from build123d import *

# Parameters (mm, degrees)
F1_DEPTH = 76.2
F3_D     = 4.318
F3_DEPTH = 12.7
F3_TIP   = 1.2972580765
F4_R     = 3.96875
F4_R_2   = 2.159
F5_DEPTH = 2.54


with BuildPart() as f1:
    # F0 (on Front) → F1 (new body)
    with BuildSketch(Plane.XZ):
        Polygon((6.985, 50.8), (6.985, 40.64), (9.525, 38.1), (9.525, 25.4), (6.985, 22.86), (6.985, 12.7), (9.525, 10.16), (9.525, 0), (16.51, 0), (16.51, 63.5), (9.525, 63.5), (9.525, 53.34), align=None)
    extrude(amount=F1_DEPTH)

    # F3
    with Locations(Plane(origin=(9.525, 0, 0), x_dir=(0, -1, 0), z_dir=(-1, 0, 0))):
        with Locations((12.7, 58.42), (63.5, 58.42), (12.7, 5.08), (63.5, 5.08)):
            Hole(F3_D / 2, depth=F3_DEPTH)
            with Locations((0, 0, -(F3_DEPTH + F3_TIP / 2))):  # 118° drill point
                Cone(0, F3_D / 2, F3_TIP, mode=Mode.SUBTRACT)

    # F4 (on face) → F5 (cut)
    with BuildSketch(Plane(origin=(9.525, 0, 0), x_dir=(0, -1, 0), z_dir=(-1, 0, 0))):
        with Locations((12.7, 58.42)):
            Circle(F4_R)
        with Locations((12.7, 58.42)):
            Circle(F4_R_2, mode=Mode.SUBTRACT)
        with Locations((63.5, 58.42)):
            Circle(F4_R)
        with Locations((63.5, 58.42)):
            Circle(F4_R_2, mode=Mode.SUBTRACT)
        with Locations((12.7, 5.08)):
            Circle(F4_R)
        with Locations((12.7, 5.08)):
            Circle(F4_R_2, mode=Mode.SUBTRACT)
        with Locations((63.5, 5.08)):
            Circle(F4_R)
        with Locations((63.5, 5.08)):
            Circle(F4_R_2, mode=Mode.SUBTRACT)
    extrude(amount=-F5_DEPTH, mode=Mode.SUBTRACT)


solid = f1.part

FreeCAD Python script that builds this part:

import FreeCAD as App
import Part
import Sketcher

V = App.Vector
Q = App.Units.Quantity

doc = App.newDocument("Part")
body = doc.addObject("PartDesign::Body", "Body")

# Sketch on XZ plane
sketch1 = doc.addObject("Sketcher::SketchObject", "Sketch")
body.addObject(sketch1)
sketch1.AttachmentSupport = (doc.XZ_Plane, [""])
sketch1.MapMode = "FlatFace"
sketch1.addGeometry([
    Part.LineSegment(V(6.985, 50.8, 0), V(6.985, 40.64, 0)),  # 0
    Part.LineSegment(V(6.985, 40.64, 0), V(9.525, 38.1, 0)),  # 1
    Part.LineSegment(V(9.525, 38.1, 0), V(9.525, 25.4, 0)),  # 2
    Part.LineSegment(V(9.525, 25.4, 0), V(6.985, 22.86, 0)),  # 3
    Part.LineSegment(V(6.985, 22.86, 0), V(6.985, 12.7, 0)),  # 4
    Part.LineSegment(V(6.985, 12.7, 0), V(9.525, 10.16, 0)),  # 5
    Part.LineSegment(V(9.525, 10.16, 0), V(9.525, 0, 0)),  # 6
    Part.LineSegment(V(9.525, 0, 0), V(16.51, 0, 0)),  # 7
    Part.LineSegment(V(16.51, 0, 0), V(16.51, 63.5, 0)),  # 8
    Part.LineSegment(V(16.51, 63.5, 0), V(9.525, 63.5, 0)),  # 9
    Part.LineSegment(V(9.525, 63.5, 0), V(9.525, 53.34, 0)),  # 10
    Part.LineSegment(V(9.525, 53.34, 0), V(6.985, 50.8, 0)),  # 11
], False)
sketch1.addConstraint([
    Sketcher.Constraint("Coincident", 0, 2, 1, 1),
    Sketcher.Constraint("Coincident", 1, 2, 2, 1),
    Sketcher.Constraint("Coincident", 2, 2, 3, 1),
    Sketcher.Constraint("Coincident", 3, 2, 4, 1),
    Sketcher.Constraint("Coincident", 4, 2, 5, 1),
    Sketcher.Constraint("Coincident", 5, 2, 6, 1),
    Sketcher.Constraint("Coincident", 6, 2, 7, 1),
    Sketcher.Constraint("Coincident", 7, 2, 8, 1),
    Sketcher.Constraint("Coincident", 8, 2, 9, 1),
    Sketcher.Constraint("Coincident", 9, 2, 10, 1),
    Sketcher.Constraint("Coincident", 10, 2, 11, 1),
    Sketcher.Constraint("Coincident", 11, 2, 0, 1),
    Sketcher.Constraint("Vertical", 0),
    Sketcher.Constraint("Vertical", 2),
    Sketcher.Constraint("Vertical", 4),
    Sketcher.Constraint("Vertical", 6),
    Sketcher.Constraint("Horizontal", 7),
    Sketcher.Constraint("Vertical", 8),
    Sketcher.Constraint("Horizontal", 9),
    Sketcher.Constraint("Vertical", 10),
    Sketcher.Constraint("PointOnObject", 6, 2, -1),
    Sketcher.Constraint("Perpendicular", 1, 3),
    Sketcher.Constraint("Perpendicular", 3, 5),
    Sketcher.Constraint("Perpendicular", 5, 11),
    Sketcher.Constraint("Vertical", 0, 2, 3, 2),
    Sketcher.Constraint("Vertical", 2, 2, 5, 2),
    Sketcher.Constraint("Vertical", 6, 2, 9, 2),
    Sketcher.Constraint("Equal", 0, 4),
    Sketcher.Constraint("Equal", 4, 6),
    Sketcher.Constraint("Equal", 6, 10),
    Sketcher.Constraint("Equal", 1, 3),
    Sketcher.Constraint("DistanceY", 0, 2, 0, 1, Q("0.4 in")),
    Sketcher.Constraint("DistanceY", 2, 2, 2, 1, Q("0.5 in")),
    Sketcher.Constraint("DistanceY", 8, 1, 8, 2, Q("2.5 in")),
    Sketcher.Constraint("DistanceX", 7, 1, 7, 2, Q("0.275 in")),
    Sketcher.Constraint("DistanceX", -1, 1, 7, 2, Q("0.65 in")),
])
pad1 = doc.addObject("PartDesign::Pad", "Pad")
body.addObject(pad1)
pad1.Profile = sketch1
pad1.Length = Q("3 in")

# Sketch on YZ plane
sketch2 = doc.addObject("Sketcher::SketchObject", "Sketch001")
body.addObject(sketch2)
sketch2.AttachmentSupport = (doc.YZ_Plane, [""])
sketch2.MapMode = "FlatFace"
sketch2.AttachmentOffset = App.Placement(V(0, 0, 0.375 * 25.4), App.Rotation())
sketch2.addGeometry([
    Part.Circle(V(-12.7, 58.42, 0), V(0, 0, 1), 2.159),
    Part.Circle(V(-63.5, 58.42, 0), V(0, 0, 1), 2.159),
    Part.Circle(V(-12.7, 5.08, 0), V(0, 0, 1), 2.159),
    Part.Circle(V(-63.5, 5.08, 0), V(0, 0, 1), 2.159),
], False)
sketch2.addConstraint([
    Sketcher.Constraint("Equal", 0, 1),
    Sketcher.Constraint("Equal", 1, 2),
    Sketcher.Constraint("Equal", 2, 3),
    Sketcher.Constraint("Horizontal", 0, 3, 1, 3),
    Sketcher.Constraint("Horizontal", 2, 3, 3, 3),
    Sketcher.Constraint("Vertical", 0, 3, 2, 3),
    Sketcher.Constraint("Vertical", 1, 3, 3, 3),
    Sketcher.Constraint("Diameter", 0, Q("0.17 in")),
    Sketcher.Constraint("DistanceX", 1, 3, 0, 3, Q("2 in")),
    Sketcher.Constraint("DistanceX", 0, 3, -1, 1, Q("0.5 in")),
    Sketcher.Constraint("DistanceY", -1, 1, 0, 3, Q("2.3 in")),
    Sketcher.Constraint("DistanceY", -1, 1, 2, 3, Q("0.2 in")),
])
doc.recompute()
hole = doc.addObject("PartDesign::Hole", "Hole")
body.addObject(hole)
hole.Profile = sketch2
hole.ThreadType = "None"
hole.Diameter = Q("0.17 in")
hole.DepthType = "Dimension"
hole.Depth = Q("0.5 in")
hole.DrillPoint = "Angled"
hole.DrillPointAngle = 118
hole.Reversed = True

# Sketch on YZ plane
sketch3 = doc.addObject("Sketcher::SketchObject", "Sketch002")
body.addObject(sketch3)
sketch3.AttachmentSupport = (doc.YZ_Plane, [""])
sketch3.MapMode = "FlatFace"
sketch3.AttachmentOffset = App.Placement(V(0, 0, 0.375 * 25.4), App.Rotation())
sketch3.addGeometry([
    Part.Circle(V(-12.7, 58.42, 0), V(0, 0, 1), 3.96875),  # 0
    Part.Circle(V(-12.7, 58.42, 0), V(0, 0, 1), 2.159),  # 1
    Part.Circle(V(-63.5, 58.42, 0), V(0, 0, 1), 3.96875),  # 2
    Part.Circle(V(-63.5, 58.42, 0), V(0, 0, 1), 2.159),  # 3
    Part.Circle(V(-12.7, 5.08, 0), V(0, 0, 1), 3.96875),  # 4
    Part.Circle(V(-12.7, 5.08, 0), V(0, 0, 1), 2.159),  # 5
    Part.Circle(V(-63.5, 5.08, 0), V(0, 0, 1), 3.96875),  # 6
    Part.Circle(V(-63.5, 5.08, 0), V(0, 0, 1), 2.159),  # 7
], False)
sketch3.addConstraint([
    Sketcher.Constraint("Coincident", 1, 3, 0, 3),
    Sketcher.Constraint("Coincident", 3, 3, 2, 3),
    Sketcher.Constraint("Coincident", 5, 3, 4, 3),
    Sketcher.Constraint("Coincident", 7, 3, 6, 3),
    Sketcher.Constraint("Equal", 0, 2),
    Sketcher.Constraint("Equal", 1, 3),
    Sketcher.Constraint("Equal", 2, 4),
    Sketcher.Constraint("Equal", 3, 5),
    Sketcher.Constraint("Equal", 4, 6),
    Sketcher.Constraint("Equal", 5, 7),
    Sketcher.Constraint("Horizontal", 1, 3, 2, 3),
    Sketcher.Constraint("Horizontal", 5, 3, 6, 3),
    Sketcher.Constraint("Vertical", 1, 3, 4, 3),
    Sketcher.Constraint("Vertical", 3, 3, 6, 3),
    Sketcher.Constraint("Diameter", 1, Q("0.17 in")),
    Sketcher.Constraint("Diameter", 0, Q("0.3125 in")),
    Sketcher.Constraint("DistanceX", 2, 3, 0, 3, Q("2 in")),
    Sketcher.Constraint("DistanceX", 0, 3, -1, 1, Q("0.5 in")),
    Sketcher.Constraint("DistanceY", -1, 1, 0, 3, Q("2.3 in")),
    Sketcher.Constraint("DistanceY", -1, 1, 4, 3, Q("0.2 in")),
])
pocket1 = doc.addObject("PartDesign::Pocket", "Pocket")
body.addObject(pocket1)
pocket1.Profile = sketch3
pocket1.Length = Q("0.1 in")
pocket1.Reversed = True

doc.recompute()
